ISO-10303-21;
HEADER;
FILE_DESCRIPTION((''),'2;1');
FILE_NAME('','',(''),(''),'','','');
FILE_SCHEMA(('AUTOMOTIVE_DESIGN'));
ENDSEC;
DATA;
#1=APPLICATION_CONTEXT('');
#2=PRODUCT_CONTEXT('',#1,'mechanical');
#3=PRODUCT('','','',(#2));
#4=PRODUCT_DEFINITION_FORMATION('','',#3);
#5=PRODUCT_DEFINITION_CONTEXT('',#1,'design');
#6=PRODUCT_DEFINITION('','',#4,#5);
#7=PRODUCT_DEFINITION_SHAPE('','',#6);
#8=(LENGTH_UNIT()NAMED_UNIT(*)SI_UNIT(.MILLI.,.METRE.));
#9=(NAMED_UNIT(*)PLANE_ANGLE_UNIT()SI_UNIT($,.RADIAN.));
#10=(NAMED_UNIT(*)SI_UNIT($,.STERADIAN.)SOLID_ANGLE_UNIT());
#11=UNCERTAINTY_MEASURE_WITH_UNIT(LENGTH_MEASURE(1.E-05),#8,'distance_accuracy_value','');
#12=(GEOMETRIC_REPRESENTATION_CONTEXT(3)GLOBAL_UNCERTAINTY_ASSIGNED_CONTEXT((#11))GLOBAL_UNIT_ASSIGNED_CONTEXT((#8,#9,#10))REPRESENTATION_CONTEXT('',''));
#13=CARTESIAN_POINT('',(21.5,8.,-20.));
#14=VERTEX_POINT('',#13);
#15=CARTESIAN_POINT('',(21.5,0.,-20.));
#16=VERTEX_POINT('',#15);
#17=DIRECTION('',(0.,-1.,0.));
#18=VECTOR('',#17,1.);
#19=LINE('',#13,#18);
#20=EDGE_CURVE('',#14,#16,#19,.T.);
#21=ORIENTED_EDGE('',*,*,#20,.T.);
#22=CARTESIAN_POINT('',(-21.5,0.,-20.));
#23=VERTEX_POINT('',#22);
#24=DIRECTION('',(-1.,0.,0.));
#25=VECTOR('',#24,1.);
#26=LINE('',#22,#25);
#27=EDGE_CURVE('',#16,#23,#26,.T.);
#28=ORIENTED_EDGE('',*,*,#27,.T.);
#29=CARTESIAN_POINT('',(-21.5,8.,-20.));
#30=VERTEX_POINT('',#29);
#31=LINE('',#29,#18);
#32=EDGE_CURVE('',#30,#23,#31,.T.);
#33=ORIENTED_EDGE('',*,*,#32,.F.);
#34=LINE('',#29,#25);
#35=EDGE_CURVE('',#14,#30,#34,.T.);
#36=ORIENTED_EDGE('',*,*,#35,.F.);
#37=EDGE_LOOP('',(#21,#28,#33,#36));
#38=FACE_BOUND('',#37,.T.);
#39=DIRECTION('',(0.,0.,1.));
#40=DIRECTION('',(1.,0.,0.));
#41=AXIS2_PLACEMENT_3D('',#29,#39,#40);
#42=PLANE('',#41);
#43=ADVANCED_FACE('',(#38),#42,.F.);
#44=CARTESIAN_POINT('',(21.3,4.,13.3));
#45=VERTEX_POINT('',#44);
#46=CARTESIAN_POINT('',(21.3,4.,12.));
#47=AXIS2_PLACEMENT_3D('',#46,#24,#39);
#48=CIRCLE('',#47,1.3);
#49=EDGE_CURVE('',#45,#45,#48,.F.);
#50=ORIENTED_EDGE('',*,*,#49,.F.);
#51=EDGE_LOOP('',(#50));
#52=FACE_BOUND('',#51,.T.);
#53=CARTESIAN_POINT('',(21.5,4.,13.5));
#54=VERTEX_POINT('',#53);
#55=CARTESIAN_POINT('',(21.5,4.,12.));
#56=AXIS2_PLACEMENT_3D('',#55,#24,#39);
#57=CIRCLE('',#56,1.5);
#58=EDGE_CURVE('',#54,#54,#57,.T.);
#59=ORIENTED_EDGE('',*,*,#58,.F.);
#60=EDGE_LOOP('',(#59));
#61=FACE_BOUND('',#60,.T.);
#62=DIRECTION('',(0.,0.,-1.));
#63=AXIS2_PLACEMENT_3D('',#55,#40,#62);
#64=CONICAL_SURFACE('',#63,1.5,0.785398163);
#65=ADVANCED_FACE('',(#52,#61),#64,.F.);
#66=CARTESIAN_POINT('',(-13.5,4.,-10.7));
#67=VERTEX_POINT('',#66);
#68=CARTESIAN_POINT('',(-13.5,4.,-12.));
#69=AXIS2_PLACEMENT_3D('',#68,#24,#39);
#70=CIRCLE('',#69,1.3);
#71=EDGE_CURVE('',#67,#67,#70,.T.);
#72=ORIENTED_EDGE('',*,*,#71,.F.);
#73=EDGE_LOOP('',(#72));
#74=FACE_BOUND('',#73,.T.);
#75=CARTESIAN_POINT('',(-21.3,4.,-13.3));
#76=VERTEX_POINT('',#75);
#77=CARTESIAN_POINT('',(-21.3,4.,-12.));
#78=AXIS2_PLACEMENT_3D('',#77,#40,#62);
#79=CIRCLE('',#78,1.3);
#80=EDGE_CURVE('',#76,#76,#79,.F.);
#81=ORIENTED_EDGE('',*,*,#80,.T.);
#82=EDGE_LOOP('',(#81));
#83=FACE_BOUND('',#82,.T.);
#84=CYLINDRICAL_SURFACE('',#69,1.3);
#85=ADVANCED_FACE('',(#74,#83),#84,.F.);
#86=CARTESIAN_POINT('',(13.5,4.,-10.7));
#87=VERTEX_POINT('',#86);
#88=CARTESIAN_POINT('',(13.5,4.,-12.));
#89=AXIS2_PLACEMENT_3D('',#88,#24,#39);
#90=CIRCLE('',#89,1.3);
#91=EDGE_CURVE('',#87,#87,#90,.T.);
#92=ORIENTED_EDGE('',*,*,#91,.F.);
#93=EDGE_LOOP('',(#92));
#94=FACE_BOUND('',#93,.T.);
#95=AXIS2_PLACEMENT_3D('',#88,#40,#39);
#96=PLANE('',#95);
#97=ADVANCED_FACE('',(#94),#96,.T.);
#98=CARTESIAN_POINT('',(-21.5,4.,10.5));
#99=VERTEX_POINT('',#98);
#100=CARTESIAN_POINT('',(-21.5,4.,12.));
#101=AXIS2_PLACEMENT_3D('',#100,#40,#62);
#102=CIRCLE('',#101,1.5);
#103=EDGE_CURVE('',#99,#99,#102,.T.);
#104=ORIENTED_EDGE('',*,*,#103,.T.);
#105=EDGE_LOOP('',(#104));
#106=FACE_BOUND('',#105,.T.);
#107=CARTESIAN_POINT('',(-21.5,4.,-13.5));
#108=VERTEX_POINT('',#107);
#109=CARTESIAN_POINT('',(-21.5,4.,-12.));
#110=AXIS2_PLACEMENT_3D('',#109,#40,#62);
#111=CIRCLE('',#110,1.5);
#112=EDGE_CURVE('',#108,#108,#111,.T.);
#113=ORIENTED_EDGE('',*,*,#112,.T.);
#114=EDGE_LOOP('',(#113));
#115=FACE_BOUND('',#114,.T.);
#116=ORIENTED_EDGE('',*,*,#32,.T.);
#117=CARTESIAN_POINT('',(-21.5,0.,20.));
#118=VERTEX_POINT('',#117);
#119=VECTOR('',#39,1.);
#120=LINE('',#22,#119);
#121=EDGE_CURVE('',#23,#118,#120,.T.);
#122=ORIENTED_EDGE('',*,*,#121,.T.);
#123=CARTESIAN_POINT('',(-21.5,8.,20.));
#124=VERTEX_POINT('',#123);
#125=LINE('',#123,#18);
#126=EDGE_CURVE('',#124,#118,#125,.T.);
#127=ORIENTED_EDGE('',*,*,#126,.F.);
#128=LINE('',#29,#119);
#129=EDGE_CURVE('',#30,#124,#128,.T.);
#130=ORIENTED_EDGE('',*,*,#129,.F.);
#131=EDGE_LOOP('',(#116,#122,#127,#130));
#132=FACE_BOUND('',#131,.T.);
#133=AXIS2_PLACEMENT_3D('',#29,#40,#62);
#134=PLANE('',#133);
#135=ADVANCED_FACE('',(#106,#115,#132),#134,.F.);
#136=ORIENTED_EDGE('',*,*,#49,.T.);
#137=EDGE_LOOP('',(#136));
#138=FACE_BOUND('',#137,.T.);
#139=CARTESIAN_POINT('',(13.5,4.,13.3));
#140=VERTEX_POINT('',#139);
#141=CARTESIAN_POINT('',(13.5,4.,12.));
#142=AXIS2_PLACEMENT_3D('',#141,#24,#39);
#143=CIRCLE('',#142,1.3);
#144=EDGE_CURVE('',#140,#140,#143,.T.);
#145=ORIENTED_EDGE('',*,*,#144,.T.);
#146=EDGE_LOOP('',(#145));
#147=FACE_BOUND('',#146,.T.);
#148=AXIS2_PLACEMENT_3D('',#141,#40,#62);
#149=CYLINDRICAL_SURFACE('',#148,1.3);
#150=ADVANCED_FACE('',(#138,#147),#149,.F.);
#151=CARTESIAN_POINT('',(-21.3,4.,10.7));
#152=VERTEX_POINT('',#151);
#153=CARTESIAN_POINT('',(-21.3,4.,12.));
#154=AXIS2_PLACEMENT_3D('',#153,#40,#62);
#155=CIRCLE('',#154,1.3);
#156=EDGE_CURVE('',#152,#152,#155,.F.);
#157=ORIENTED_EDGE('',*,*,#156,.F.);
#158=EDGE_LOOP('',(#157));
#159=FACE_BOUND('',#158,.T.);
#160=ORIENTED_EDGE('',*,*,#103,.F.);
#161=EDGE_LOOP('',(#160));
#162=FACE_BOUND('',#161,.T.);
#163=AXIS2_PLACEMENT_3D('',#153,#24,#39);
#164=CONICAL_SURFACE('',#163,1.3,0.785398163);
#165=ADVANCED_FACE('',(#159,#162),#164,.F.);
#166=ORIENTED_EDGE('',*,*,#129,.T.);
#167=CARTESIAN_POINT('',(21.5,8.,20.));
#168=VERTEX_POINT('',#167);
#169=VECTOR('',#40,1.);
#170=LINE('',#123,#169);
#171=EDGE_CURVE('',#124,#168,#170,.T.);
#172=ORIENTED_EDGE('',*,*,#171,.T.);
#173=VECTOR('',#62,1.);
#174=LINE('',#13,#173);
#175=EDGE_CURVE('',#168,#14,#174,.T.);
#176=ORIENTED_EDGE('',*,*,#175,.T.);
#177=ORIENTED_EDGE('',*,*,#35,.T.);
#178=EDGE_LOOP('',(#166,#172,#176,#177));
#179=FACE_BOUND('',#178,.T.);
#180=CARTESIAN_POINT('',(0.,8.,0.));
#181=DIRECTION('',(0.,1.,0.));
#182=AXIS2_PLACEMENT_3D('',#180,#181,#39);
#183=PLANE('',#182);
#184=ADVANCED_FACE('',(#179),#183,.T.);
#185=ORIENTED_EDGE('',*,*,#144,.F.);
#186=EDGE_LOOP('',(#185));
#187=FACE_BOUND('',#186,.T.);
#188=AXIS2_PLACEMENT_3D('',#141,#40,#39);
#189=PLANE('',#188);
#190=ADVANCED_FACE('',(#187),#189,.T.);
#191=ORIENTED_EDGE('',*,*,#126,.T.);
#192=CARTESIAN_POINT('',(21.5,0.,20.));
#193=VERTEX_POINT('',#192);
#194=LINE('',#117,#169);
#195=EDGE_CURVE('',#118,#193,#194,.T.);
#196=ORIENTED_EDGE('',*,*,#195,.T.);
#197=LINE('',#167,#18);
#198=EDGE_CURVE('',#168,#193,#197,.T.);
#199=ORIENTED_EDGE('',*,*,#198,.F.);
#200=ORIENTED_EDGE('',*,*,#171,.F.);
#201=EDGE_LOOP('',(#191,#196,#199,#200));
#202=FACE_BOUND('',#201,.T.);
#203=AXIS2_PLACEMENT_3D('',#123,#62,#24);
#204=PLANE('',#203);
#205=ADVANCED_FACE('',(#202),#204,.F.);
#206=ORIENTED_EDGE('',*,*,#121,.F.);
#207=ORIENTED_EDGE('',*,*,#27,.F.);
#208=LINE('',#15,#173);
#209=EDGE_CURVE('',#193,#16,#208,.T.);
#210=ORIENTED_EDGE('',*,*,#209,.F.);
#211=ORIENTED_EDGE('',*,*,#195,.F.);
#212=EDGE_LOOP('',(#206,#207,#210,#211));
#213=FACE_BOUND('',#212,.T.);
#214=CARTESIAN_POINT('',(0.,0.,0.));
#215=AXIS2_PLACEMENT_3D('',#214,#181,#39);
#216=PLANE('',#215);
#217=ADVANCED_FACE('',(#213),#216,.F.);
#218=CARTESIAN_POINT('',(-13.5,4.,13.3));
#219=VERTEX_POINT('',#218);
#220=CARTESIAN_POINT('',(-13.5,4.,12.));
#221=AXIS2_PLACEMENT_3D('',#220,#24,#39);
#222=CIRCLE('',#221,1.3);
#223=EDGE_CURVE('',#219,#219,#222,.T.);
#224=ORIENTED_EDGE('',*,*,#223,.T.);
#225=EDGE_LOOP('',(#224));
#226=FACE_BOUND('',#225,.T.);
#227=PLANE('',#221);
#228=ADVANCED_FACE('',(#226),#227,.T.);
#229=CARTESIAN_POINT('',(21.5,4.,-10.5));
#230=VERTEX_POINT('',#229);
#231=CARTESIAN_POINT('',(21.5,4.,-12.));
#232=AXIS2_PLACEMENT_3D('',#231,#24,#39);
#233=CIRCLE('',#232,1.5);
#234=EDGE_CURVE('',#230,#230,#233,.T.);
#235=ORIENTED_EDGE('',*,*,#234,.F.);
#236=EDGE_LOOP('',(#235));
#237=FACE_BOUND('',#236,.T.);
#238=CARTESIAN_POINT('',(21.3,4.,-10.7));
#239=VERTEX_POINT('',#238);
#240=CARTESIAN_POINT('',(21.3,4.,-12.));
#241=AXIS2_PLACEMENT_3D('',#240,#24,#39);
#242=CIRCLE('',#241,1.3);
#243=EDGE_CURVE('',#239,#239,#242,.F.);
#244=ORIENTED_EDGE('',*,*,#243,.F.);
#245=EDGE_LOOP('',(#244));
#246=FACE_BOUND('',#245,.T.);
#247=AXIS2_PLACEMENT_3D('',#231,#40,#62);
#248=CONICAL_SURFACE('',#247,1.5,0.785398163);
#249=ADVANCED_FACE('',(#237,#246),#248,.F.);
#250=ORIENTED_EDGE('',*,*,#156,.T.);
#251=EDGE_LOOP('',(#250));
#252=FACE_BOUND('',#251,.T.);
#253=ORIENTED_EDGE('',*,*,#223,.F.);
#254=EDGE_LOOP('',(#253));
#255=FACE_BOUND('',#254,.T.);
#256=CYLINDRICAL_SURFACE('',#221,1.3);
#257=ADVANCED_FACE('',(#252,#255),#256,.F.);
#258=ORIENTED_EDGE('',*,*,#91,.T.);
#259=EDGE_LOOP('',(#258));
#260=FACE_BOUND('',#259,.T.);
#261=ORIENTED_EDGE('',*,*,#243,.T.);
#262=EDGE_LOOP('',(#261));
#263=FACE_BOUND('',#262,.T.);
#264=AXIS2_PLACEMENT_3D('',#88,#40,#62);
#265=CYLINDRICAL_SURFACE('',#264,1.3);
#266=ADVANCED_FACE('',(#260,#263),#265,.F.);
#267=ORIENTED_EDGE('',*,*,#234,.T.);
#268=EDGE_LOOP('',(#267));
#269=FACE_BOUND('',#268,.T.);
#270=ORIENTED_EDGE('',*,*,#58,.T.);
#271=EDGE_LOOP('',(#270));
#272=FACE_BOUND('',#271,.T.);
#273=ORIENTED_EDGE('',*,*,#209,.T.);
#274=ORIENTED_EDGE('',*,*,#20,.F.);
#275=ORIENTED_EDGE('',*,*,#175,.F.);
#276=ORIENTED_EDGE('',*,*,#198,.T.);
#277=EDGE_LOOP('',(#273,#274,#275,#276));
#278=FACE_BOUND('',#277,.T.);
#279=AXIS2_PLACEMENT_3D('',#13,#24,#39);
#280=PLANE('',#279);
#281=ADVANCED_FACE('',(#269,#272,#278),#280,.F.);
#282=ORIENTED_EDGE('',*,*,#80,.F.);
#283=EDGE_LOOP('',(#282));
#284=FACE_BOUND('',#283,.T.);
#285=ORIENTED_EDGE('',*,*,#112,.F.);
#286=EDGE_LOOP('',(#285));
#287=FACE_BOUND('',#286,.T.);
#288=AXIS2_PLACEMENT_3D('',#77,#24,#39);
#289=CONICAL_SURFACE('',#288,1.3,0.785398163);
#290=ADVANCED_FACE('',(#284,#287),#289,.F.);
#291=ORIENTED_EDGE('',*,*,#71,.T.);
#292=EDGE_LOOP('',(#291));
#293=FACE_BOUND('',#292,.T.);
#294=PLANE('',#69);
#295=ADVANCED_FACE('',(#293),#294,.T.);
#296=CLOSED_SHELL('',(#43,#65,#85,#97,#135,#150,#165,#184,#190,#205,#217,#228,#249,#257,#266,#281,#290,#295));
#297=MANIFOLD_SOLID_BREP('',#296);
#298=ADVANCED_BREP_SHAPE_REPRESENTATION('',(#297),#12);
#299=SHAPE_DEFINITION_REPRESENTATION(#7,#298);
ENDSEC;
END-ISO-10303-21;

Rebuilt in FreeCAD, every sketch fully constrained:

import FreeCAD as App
import Part
import Sketcher


def edges_at(feature, points):
    """Names of the edges that pass closest to the given points."""
    edges = feature.Shape.Edges
    near = lambda p: min(range(len(edges)), key=lambda i: edges[i].distToShape(Part.Vertex(*p))[0])
    return sorted({f"Edge{near(p) + 1}" for p in points})


def add_polygon(sketch, points):
    """Adds a closed chain of lines whose ends are joined by coincident constraints."""
    first, n = sketch.GeometryCount, len(points)
    for a, b in zip(points, points[1:] + points[:1]):
        sketch.addGeometry(Part.LineSegment(App.Vector(*a, 0), App.Vector(*b, 0)), False)
    for i in range(n):
        sketch.addConstraint(Sketcher.Constraint("Coincident", first + i, 2, first + (i + 1) % n, 1))

doc = App.newDocument("Part")
body = doc.addObject("PartDesign::Body", "Body")

# Sketch on XZ plane
sketch1 = body.newObject("Sketcher::SketchObject", "Sketch")
sketch1.AttachmentSupport = (doc.getObject("XZ_Plane"), [""])
sketch1.MapMode = "FlatFace"
add_polygon(sketch1, [(-22, -20), (-22, 20), (22, 20), (22, -20)])  # lines 0-3
sketch1.addConstraint(Sketcher.Constraint("Vertical", 0))
sketch1.addConstraint(Sketcher.Constraint("Horizontal", 1))
sketch1.addConstraint(Sketcher.Constraint("Vertical", 2))
sketch1.addConstraint(Sketcher.Constraint("Horizontal", 3))
sketch1.addConstraint(Sketcher.Constraint("Symmetric", 0, 2, 2, 2, -1, 1))
sketch1.addConstraint(Sketcher.Constraint("DistanceX", 1, 1, 1, 2, 43.0))
sketch1.addConstraint(Sketcher.Constraint("DistanceY", 0, 1, 0, 2, 40.0))
pad1 = body.newObject("PartDesign::Pad", "Pad")
pad1.Profile = sketch1
pad1.Length = 8
pad1.Reversed = True

# Sketch on YZ plane
sketch2 = body.newObject("Sketcher::SketchObject", "Sketch001")
sketch2.AttachmentSupport = (doc.getObject("YZ_Plane"), [""])
sketch2.MapMode = "FlatFace"
sketch2.AttachmentOffset = App.Placement(App.Vector(0, 0, -21.5), App.Rotation())
sketch2.addGeometry(Part.Circle(App.Vector(4, -12, 0), App.Vector(0, 0, 1), 1.3), False)
sketch2.addGeometry(Part.Circle(App.Vector(4, 12, 0), App.Vector(0, 0, 1), 1.3), False)
sketch2.addConstraint(Sketcher.Constraint("Equal", 0, 1))
sketch2.addConstraint(Sketcher.Constraint("Symmetric", 0, 3, 1, 3, -1))
sketch2.addConstraint(Sketcher.Constraint("Diameter", 0, 2.6))
sketch2.addConstraint(Sketcher.Constraint("DistanceX", -1, 1, 0, 3, 4.0))
sketch2.addConstraint(Sketcher.Constraint("DistanceY", 0, 3, -1, 1, 12.0))
pocket1 = body.newObject("PartDesign::Pocket", "Pocket")
pocket1.Profile = sketch2
pocket1.Length = 8
pocket1.Reversed = True
doc.recompute()

mirrored = body.newObject("PartDesign::Mirrored", "Mirrored")
mirrored.Originals = [pocket1]
mirrored.MirrorPlane = (doc.getObject("YZ_Plane"), [""])
body.Tip = mirrored
doc.recompute()

chamfer = body.newObject("PartDesign::Chamfer", "Chamfer")
chamfer.Base = (mirrored, edges_at(mirrored, [
    (-21.5, 4, -13.3),
    (-21.5, 4, 10.7),
    (21.5, 4, -13.3),
    (21.5, 4, 10.7),
]))
chamfer.Size = 0.2

doc.recompute()
